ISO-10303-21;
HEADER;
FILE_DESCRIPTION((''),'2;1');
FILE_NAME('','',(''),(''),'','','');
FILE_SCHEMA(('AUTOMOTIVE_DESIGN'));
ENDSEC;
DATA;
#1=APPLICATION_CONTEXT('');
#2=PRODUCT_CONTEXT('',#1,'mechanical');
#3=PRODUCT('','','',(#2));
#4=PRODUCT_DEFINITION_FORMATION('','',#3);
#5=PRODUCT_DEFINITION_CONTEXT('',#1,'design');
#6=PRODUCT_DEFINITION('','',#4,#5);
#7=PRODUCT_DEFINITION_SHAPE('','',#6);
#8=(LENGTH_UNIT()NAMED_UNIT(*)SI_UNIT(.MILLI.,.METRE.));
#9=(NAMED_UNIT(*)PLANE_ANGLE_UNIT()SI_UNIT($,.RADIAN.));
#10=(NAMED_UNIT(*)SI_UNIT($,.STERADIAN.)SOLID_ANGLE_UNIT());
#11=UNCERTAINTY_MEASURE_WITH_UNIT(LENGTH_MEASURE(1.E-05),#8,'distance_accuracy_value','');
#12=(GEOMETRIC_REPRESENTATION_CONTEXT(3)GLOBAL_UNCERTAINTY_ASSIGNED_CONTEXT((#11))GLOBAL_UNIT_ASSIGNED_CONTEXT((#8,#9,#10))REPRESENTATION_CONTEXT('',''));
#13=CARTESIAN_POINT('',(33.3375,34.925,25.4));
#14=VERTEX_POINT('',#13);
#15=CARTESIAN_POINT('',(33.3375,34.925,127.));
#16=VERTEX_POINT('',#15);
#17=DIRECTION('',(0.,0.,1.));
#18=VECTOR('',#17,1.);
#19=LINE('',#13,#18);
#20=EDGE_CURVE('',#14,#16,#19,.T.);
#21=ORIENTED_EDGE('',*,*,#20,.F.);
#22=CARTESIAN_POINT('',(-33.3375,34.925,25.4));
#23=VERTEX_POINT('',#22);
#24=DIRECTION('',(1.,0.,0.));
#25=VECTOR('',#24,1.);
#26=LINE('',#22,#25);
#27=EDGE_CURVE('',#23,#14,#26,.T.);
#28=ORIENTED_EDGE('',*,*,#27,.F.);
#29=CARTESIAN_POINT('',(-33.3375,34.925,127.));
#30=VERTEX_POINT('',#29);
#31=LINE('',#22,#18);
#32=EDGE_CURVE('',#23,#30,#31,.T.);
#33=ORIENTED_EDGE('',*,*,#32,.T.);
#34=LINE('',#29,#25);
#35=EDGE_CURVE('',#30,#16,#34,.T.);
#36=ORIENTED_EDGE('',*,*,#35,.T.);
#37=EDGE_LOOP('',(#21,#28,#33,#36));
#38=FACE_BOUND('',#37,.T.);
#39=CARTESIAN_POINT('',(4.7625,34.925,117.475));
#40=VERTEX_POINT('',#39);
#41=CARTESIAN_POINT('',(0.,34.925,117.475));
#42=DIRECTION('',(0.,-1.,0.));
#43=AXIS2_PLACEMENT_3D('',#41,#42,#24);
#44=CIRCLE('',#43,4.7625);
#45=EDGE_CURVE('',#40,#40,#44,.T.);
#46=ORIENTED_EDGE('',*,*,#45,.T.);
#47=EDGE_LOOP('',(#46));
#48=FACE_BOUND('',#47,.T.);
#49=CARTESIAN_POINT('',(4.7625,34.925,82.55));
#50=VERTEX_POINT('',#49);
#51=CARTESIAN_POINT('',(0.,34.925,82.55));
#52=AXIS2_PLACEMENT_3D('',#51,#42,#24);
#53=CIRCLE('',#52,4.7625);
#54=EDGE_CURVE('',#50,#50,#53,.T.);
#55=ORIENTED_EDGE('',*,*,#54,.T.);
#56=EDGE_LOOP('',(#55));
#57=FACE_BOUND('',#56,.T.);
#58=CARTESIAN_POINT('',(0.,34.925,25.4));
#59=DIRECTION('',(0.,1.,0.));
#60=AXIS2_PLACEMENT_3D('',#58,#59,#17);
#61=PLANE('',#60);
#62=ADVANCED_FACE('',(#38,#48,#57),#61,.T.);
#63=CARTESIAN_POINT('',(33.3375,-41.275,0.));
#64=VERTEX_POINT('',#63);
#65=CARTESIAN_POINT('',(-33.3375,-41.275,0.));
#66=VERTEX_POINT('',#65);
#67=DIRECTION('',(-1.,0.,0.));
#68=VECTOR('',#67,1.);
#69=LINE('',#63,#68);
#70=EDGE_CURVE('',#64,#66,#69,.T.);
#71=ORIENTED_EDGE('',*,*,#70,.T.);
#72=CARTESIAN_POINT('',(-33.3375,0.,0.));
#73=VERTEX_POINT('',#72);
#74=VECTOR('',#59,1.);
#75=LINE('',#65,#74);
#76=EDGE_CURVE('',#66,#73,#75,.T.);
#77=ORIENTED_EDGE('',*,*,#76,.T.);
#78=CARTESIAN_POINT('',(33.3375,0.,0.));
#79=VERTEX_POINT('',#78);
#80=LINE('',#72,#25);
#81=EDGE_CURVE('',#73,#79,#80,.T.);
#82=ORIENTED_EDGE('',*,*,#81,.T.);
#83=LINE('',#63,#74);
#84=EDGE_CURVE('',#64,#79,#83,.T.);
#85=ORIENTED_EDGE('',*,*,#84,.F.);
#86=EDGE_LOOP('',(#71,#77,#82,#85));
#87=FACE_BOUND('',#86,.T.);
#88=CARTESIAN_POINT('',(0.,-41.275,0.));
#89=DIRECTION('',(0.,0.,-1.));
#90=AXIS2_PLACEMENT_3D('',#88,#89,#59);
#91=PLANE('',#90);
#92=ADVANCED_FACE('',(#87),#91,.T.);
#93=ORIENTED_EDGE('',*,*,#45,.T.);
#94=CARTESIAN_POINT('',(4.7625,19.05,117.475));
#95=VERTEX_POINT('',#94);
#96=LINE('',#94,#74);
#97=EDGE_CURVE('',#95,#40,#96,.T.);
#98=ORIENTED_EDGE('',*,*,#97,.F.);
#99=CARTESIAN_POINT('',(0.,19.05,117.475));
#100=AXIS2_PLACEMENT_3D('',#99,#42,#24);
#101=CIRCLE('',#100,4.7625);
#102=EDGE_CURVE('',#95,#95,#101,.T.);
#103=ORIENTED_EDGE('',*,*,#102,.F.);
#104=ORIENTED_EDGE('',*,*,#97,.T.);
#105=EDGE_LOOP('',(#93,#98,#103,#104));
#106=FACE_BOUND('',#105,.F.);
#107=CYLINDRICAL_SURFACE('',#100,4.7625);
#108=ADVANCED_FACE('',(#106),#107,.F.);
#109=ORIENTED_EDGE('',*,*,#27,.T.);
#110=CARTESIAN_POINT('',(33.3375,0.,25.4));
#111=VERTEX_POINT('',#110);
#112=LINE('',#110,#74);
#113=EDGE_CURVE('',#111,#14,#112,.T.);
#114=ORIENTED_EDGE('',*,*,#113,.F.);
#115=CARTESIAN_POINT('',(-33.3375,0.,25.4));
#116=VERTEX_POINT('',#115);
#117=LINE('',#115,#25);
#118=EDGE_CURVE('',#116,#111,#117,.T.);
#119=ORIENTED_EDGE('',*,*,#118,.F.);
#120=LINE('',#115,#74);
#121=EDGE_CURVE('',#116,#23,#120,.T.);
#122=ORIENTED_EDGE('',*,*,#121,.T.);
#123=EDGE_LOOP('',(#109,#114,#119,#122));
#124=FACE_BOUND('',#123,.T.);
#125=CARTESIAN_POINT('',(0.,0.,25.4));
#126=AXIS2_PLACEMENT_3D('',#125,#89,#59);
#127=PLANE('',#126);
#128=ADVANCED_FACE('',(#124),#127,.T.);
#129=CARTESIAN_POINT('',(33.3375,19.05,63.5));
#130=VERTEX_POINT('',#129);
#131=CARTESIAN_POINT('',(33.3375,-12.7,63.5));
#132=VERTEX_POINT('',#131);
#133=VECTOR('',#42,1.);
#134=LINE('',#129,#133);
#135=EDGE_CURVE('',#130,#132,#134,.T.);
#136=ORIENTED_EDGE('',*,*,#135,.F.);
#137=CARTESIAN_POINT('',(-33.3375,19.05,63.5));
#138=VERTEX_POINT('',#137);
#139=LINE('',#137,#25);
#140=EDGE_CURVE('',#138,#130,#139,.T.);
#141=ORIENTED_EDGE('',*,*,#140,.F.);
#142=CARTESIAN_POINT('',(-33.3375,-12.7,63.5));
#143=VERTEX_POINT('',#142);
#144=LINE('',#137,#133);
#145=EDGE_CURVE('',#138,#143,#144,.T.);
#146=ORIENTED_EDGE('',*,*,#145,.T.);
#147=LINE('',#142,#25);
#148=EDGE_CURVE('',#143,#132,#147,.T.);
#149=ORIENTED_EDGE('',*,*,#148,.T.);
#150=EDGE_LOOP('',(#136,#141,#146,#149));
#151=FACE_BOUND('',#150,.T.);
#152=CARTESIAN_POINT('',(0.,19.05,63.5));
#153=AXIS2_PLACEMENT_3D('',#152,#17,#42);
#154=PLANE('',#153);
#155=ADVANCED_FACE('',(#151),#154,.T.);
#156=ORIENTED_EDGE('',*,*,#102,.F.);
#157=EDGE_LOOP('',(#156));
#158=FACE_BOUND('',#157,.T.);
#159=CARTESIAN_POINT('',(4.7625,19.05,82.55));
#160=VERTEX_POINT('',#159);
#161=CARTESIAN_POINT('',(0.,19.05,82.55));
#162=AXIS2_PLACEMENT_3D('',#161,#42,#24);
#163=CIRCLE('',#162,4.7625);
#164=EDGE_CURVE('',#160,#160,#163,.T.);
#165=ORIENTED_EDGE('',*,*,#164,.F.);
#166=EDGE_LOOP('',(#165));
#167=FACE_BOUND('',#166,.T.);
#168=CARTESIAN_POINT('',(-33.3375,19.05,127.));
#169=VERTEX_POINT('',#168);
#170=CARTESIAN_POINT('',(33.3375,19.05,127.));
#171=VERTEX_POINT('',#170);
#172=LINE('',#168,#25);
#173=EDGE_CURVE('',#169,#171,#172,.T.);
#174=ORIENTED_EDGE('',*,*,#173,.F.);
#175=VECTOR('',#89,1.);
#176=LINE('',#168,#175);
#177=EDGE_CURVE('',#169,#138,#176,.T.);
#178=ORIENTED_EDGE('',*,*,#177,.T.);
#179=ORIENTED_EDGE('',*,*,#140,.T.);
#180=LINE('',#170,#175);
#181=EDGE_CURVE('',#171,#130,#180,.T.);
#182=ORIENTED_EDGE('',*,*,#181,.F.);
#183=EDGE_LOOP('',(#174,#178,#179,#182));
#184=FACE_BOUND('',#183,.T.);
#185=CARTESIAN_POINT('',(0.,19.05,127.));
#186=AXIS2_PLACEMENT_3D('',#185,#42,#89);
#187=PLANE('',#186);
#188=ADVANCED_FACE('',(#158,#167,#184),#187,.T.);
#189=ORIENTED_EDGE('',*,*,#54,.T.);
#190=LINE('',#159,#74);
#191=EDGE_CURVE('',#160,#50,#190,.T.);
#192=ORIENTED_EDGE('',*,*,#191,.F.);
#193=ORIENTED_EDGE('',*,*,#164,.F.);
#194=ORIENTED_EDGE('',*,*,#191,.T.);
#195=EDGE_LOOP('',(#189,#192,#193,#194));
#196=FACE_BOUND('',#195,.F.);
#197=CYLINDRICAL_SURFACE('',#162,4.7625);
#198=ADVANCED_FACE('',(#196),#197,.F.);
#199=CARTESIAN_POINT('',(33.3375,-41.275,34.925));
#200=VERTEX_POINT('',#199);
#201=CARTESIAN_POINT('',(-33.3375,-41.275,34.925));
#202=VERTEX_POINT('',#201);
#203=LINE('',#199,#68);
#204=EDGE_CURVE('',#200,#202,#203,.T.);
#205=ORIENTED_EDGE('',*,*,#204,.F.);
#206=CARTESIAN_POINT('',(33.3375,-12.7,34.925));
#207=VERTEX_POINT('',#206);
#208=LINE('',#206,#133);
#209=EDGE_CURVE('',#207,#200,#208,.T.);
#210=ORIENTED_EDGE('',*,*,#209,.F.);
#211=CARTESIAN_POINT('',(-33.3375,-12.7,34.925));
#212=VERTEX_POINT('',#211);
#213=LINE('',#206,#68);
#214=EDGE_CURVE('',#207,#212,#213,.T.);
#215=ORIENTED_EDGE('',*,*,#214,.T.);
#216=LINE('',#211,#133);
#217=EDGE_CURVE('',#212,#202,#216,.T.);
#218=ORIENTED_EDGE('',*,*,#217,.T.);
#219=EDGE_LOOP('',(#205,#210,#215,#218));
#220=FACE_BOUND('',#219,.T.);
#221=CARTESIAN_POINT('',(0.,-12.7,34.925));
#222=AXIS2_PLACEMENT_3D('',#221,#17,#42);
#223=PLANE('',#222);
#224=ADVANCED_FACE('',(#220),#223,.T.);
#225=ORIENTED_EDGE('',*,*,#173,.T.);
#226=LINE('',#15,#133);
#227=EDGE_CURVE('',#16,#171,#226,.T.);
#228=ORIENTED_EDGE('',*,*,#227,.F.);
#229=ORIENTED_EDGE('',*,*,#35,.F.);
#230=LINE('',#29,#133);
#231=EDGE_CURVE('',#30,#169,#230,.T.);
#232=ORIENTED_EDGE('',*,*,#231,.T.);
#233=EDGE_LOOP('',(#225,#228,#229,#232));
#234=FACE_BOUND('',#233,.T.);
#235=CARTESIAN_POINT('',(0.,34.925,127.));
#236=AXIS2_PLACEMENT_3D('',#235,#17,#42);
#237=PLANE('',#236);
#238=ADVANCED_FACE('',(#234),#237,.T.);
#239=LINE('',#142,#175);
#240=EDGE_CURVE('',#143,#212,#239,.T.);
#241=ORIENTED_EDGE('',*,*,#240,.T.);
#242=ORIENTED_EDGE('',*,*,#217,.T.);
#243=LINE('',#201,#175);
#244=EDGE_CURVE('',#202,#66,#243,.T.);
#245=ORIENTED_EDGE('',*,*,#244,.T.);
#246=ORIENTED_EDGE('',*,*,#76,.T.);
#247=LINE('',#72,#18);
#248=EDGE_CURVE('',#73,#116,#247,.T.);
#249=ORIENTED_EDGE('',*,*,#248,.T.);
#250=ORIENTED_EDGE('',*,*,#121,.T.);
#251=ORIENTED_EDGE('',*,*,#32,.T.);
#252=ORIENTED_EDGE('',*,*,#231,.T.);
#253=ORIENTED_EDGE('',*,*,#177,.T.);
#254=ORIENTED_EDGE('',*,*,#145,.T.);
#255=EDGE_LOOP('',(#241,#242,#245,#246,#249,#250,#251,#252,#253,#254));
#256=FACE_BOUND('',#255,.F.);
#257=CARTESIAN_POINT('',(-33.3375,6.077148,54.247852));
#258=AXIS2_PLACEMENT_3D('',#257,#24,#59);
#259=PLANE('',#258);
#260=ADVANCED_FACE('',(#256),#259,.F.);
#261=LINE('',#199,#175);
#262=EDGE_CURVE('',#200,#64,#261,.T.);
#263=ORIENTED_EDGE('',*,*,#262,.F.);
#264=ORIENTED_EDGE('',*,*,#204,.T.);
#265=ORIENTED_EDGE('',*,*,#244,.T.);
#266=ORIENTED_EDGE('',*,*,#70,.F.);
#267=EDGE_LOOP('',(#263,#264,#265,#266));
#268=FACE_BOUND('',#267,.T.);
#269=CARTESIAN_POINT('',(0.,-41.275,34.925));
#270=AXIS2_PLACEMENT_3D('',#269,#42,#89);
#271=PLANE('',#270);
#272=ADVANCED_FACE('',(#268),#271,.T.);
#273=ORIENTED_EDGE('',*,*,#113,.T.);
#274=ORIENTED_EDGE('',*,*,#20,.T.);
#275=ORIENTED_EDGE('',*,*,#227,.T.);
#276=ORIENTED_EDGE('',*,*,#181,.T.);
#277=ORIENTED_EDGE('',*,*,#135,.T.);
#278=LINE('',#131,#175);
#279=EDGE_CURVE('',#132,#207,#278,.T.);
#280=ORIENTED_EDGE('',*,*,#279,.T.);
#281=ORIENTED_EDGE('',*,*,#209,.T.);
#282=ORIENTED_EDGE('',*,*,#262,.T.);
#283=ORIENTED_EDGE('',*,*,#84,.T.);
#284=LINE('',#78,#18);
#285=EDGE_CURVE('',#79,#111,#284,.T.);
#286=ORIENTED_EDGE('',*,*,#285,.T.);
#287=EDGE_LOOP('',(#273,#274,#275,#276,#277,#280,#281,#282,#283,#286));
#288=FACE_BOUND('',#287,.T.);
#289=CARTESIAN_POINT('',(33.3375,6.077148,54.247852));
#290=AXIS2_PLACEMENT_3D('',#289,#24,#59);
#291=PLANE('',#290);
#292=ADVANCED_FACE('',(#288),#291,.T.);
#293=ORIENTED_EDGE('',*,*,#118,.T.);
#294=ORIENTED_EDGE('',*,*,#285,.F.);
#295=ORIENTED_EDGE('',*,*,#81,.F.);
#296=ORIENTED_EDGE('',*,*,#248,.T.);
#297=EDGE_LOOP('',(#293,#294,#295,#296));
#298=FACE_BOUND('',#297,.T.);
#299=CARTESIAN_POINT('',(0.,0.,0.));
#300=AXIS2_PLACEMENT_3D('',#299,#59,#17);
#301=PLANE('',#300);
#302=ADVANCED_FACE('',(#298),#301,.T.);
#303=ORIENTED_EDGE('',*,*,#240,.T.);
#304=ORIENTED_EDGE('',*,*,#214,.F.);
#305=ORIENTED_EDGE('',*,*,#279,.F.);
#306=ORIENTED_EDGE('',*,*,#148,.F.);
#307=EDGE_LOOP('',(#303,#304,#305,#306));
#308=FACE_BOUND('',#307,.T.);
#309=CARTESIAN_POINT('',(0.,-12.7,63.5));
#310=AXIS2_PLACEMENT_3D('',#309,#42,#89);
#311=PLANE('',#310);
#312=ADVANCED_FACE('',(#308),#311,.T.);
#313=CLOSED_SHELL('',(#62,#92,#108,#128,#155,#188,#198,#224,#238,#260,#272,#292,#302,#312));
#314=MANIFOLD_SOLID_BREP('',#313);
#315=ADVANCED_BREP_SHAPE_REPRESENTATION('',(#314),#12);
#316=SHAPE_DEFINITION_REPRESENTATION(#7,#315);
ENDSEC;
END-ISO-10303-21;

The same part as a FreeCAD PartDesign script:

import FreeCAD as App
import Part
import Sketcher
Q = App.Units.Quantity


def add_polygon(sketch, points):
    """Adds a closed chain of lines whose ends are joined by coincident constraints."""
    first, n = sketch.GeometryCount, len(points)
    for a, b in zip(points, points[1:] + points[:1]):
        sketch.addGeometry(Part.LineSegment(App.Vector(*a, 0), App.Vector(*b, 0)), False)
    for i in range(n):
        sketch.addConstraint(Sketcher.Constraint("Coincident", first + i, 2, first + (i + 1) % n, 1))

doc = App.newDocument("Part")
body = doc.addObject("PartDesign::Body", "Body")

sketch1 = body.newObject("Sketcher::SketchObject", "Sketch")
sketch1.AttachmentSupport = (doc.getObject("YZ_Plane"), [""])
sketch1.MapMode = "FlatFace"
add_polygon(sketch1, [(-41.275, 0), (0, 0), (0, 25.4), (34.925, 25.4), (34.925, 127), (19.05, 127), (19.05, 63.5), (-12.7, 63.5), (-12.7, 34.925), (-41.275, 34.925)])
sketch1.addConstraint([
    Sketcher.Constraint("Horizontal", 0),
    Sketcher.Constraint("Vertical", 1),
    Sketcher.Constraint("Horizontal", 2),
    Sketcher.Constraint("Vertical", 3),
    Sketcher.Constraint("Horizontal", 4),
    Sketcher.Constraint("Vertical", 5),
    Sketcher.Constraint("Horizontal", 6),
    Sketcher.Constraint("Vertical", 7),
    Sketcher.Constraint("Horizontal", 8),
    Sketcher.Constraint("Vertical", 9),
    Sketcher.Constraint("Coincident", 0, 2, -1, 1),
    Sketcher.Constraint("Equal", 8, 7),
    Sketcher.Constraint("Equal", 2, 9),
    Sketcher.Constraint("DistanceY", 1, 1, 1, 2, Q("1 in")),
    Sketcher.Constraint("DistanceY", 3, 1, 3, 2, Q("4 in")),
    Sketcher.Constraint("DistanceY", 5, 2, 5, 1, Q("2.5 in")),
    Sketcher.Constraint("DistanceX", 6, 2, 6, 1, Q("1.25 in")),
    Sketcher.Constraint("DistanceX", 6, 2, -1, 1, Q("0.5 in")),
    Sketcher.Constraint("DistanceX", 0, 1, 0, 2, Q("1.625 in")),
])
pad1 = body.newObject("PartDesign::Pad", "Pad")
pad1.Profile = sketch1
pad1.Length = Q("2.625 in")
pad1.Midplane = True

sketch2 = body.newObject("Sketcher::SketchObject", "Sketch001")
sketch2.AttachmentSupport = (doc.getObject("XZ_Plane"), [""])
sketch2.MapMode = "FlatFace"
sketch2.AttachmentOffset = App.Placement(App.Vector(0, 0, -0.75 * 25.4), App.Rotation())
sketch2.addGeometry([
    Part.Circle(App.Vector(0, 117.475, 0), App.Vector(0, 0, 1), 4.7625),
    Part.Circle(App.Vector(0, 82.55, 0), App.Vector(0, 0, 1), 4.7625),
], False)
sketch2.addConstraint([
    Sketcher.Constraint("Equal", 0, 1),
    Sketcher.Constraint("PointOnObject", 0, 3, -2),
    Sketcher.Constraint("PointOnObject", 1, 3, -2),
    Sketcher.Constraint("Diameter", 0, Q("0.375 in")),
    Sketcher.Constraint("DistanceY", -1, 1, 1, 3, Q("3.25 in")),
    Sketcher.Constraint("DistanceY", -1, 1, 0, 3, Q("4.625 in")),
])
pocket1 = body.newObject("PartDesign::Pocket", "Pocket")
pocket1.Profile = sketch2
pocket1.Type = "ThroughAll"

doc.recompute()
